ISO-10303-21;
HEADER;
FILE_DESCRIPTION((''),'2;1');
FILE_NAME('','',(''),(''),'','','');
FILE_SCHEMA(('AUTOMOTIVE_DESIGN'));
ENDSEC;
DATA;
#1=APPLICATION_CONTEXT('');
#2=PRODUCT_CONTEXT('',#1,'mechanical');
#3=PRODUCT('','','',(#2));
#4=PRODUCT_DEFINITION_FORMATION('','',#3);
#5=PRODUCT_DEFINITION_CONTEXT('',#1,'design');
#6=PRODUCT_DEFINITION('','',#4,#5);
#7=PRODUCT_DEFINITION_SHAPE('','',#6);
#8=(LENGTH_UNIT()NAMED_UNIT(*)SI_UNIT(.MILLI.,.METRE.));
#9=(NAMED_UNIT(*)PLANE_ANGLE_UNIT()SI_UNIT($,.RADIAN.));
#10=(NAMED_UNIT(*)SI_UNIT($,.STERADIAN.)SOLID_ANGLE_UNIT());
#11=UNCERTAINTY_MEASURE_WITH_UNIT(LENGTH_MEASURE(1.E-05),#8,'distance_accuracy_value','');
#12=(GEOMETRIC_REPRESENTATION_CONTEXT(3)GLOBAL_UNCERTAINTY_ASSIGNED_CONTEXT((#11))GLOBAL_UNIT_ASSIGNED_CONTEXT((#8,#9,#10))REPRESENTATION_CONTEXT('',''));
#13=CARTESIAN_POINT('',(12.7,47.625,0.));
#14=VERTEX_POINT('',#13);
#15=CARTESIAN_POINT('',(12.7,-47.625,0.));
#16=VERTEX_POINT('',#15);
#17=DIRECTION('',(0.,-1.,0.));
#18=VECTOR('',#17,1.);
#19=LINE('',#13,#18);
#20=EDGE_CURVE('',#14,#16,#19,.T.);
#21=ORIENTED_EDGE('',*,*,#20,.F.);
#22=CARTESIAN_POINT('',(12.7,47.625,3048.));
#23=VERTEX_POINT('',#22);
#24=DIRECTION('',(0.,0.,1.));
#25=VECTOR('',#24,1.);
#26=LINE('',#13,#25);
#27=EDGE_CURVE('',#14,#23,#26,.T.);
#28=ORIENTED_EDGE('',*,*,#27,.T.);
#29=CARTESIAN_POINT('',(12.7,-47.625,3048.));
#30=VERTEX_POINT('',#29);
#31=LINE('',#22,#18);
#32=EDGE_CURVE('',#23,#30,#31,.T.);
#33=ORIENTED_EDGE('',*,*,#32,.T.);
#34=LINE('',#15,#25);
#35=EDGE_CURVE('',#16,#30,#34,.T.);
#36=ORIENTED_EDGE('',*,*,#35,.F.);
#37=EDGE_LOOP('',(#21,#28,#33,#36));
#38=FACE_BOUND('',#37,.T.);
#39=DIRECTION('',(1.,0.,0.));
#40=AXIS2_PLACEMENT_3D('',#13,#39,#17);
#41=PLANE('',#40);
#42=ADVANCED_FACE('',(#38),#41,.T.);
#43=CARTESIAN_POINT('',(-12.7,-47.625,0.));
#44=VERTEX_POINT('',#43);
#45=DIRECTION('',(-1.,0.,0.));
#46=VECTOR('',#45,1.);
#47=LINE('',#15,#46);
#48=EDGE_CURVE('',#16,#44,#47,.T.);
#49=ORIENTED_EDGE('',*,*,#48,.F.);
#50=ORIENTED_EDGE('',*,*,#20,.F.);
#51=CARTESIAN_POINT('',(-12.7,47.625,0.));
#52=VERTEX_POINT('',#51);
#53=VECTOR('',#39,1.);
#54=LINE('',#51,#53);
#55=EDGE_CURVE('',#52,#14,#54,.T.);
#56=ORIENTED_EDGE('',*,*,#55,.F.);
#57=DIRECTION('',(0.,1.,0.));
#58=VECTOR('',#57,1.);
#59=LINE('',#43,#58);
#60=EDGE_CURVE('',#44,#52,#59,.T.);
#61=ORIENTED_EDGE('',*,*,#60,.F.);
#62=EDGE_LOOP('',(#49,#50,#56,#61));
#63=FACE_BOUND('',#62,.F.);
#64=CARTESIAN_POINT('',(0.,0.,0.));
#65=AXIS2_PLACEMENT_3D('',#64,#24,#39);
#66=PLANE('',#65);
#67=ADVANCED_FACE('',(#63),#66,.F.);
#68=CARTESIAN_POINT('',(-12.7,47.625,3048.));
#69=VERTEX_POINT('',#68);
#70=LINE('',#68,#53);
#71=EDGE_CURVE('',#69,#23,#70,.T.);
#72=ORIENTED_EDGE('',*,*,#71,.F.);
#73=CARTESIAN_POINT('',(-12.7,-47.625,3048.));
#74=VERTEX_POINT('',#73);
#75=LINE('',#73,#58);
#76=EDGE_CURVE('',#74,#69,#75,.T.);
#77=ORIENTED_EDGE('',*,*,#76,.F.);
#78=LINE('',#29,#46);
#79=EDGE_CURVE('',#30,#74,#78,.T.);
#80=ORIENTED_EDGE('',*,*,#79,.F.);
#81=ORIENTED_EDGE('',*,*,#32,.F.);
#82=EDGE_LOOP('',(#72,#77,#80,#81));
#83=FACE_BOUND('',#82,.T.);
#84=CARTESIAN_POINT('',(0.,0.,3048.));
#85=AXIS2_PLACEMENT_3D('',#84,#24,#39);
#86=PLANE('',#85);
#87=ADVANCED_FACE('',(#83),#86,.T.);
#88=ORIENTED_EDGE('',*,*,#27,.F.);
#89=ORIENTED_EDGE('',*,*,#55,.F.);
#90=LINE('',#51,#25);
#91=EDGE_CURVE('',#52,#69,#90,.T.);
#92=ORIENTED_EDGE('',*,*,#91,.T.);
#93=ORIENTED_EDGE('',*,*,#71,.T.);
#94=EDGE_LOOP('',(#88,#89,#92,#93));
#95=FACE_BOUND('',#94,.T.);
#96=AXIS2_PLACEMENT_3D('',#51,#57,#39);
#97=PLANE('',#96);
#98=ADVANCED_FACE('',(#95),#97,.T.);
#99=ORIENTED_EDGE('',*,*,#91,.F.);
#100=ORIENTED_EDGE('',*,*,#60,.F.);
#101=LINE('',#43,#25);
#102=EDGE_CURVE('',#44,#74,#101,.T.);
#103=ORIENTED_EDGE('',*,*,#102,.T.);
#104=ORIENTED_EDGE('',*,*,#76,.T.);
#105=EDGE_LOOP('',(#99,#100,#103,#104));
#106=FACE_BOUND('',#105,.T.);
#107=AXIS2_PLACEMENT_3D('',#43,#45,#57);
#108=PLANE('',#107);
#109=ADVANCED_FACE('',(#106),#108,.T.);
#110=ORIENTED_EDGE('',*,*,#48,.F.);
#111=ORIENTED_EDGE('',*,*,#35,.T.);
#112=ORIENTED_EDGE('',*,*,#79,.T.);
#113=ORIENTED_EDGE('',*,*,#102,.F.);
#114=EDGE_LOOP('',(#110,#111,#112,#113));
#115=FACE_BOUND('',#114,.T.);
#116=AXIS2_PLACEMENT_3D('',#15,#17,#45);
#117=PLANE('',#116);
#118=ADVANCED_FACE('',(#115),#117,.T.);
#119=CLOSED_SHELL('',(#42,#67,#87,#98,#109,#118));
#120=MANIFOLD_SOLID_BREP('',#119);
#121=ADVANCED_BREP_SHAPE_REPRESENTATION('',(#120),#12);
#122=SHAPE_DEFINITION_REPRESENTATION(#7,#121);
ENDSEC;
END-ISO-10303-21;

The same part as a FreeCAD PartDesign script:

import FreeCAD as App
import Part
import Sketcher

V = App.Vector
Q = App.Units.Quantity

doc = App.newDocument("Part")
body = doc.addObject("PartDesign::Body", "Body")

# Sketch on XY plane
sketch1 = body.newObject("Sketcher::SketchObject", "Sketch")
sketch1.AttachmentSupport = (doc.getObject("XY_Plane"), [""])
sketch1.MapMode = "FlatFace"
sketch1.addGeometry([
    Part.LineSegment(V(-13, -48, 0), V(13, -48, 0)),
    Part.LineSegment(V(13, -48, 0), V(13, 48, 0)),
    Part.LineSegment(V(13, 48, 0), V(-13, 48, 0)),
    Part.LineSegment(V(-13, 48, 0), V(-13, -48, 0)),
], False)
sketch1.addConstraint([
    Sketcher.Constraint("Coincident", 0, 2, 1, 1),
    Sketcher.Constraint("Coincident", 1, 2, 2, 1),
    Sketcher.Constraint("Coincident", 2, 2, 3, 1),
    Sketcher.Constraint("Coincident", 3, 2, 0, 1),
    Sketcher.Constraint("Horizontal", 0),
    Sketcher.Constraint("Vertical", 1),
    Sketcher.Constraint("Horizontal", 2),
    Sketcher.Constraint("Vertical", 3),
    Sketcher.Constraint("Symmetric", 0, 2, 2, 2, -1, 1),
    Sketcher.Constraint("DistanceX", 0, 1, 0, 2, Q("1 in")),
    Sketcher.Constraint("DistanceY", 1, 1, 1, 2, Q("3.75 in")),
])
pad1 = body.newObject("PartDesign::Pad", "Pad")
pad1.Profile = sketch1
pad1.Length = Q("120 in")

doc.recompute()
